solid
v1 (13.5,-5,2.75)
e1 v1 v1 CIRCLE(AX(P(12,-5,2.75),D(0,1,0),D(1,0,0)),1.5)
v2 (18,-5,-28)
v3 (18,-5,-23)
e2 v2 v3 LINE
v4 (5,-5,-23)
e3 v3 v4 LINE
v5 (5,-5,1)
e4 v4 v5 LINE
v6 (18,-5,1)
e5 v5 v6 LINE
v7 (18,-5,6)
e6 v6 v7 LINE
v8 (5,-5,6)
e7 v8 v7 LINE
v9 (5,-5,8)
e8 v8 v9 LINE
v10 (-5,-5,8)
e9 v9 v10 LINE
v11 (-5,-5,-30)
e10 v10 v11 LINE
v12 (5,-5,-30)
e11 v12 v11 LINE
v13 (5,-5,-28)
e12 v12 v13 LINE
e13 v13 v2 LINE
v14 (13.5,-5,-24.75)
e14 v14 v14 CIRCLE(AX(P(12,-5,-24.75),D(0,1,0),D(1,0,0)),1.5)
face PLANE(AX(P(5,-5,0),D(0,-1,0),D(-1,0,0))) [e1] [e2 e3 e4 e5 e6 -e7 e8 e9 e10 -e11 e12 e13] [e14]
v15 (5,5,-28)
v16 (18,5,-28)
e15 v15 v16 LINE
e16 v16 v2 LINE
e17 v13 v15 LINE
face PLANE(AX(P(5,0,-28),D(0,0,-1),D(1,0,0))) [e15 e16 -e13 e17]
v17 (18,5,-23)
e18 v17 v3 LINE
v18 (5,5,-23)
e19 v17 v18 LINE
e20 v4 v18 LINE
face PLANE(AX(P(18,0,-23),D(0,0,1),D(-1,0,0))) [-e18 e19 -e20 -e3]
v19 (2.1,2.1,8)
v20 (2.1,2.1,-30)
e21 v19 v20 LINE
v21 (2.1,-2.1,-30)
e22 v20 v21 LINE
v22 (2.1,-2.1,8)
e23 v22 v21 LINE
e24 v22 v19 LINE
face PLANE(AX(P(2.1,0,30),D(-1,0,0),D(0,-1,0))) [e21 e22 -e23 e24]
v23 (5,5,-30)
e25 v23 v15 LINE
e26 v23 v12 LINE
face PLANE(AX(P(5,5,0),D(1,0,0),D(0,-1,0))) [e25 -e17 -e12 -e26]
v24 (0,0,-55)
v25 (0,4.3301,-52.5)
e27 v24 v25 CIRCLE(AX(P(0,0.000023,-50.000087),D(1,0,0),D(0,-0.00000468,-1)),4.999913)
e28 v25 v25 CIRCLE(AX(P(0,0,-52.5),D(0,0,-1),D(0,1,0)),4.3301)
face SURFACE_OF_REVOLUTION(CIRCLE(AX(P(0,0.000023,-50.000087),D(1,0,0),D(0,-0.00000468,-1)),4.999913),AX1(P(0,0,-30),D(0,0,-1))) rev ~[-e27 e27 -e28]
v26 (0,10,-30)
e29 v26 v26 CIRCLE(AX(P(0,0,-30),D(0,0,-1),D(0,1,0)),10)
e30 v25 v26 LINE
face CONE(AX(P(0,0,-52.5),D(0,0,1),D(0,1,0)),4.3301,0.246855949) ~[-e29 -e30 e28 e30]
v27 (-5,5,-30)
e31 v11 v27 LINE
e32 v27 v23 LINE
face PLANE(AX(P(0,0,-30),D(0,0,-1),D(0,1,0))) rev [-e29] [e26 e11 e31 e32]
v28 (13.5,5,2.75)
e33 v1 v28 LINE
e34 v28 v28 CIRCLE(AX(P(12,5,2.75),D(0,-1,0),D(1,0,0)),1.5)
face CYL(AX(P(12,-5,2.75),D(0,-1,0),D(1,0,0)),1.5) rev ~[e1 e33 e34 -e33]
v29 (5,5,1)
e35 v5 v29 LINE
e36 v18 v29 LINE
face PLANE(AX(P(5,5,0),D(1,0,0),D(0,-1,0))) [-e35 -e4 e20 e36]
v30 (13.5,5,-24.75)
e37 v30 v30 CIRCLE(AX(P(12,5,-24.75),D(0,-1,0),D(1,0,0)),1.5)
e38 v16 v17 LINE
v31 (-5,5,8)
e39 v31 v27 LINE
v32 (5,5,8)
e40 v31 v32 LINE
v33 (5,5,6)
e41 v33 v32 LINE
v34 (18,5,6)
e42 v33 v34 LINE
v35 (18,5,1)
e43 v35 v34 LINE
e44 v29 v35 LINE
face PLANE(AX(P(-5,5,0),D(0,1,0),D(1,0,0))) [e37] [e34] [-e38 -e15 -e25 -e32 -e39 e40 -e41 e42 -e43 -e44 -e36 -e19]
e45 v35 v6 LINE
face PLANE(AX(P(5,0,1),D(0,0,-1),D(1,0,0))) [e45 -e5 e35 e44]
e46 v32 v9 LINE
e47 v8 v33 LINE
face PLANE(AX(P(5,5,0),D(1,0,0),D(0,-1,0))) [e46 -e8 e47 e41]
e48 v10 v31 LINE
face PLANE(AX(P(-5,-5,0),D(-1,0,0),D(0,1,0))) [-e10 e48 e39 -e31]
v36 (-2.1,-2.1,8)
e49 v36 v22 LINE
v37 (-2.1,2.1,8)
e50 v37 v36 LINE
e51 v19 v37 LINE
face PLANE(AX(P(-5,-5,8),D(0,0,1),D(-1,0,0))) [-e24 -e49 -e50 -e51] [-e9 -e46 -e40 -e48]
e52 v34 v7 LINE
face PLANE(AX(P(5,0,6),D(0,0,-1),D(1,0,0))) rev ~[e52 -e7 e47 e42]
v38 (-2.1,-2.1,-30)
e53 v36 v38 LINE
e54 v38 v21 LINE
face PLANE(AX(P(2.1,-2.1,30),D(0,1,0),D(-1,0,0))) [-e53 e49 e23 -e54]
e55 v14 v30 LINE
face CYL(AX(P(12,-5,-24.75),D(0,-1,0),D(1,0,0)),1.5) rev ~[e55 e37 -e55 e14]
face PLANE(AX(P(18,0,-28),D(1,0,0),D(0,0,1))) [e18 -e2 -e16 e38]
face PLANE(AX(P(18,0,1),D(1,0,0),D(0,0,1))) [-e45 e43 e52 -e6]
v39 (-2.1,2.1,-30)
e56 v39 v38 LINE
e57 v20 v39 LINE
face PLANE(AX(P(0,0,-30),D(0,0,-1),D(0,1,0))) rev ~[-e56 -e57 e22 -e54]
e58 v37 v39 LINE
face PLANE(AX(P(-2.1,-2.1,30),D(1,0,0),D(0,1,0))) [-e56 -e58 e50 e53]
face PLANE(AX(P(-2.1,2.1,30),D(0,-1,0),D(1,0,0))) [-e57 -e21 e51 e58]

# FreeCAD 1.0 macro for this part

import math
import FreeCAD as App
import Part
import Sketcher

V = App.Vector
Q = App.Units.Quantity


def add_polygon(sketch, points):
    """Adds a closed chain of lines whose ends are joined by coincident constraints."""
    first, n = sketch.GeometryCount, len(points)
    for a, b in zip(points, points[1:] + points[:1]):
        sketch.addGeometry(Part.LineSegment(App.Vector(*a, 0), App.Vector(*b, 0)), False)
    for i in range(n):
        sketch.addConstraint(Sketcher.Constraint("Coincident", first + i, 2, first + (i + 1) % n, 1))

doc = App.newDocument("Part")
params = doc.addObject("Spreadsheet::Sheet", "Params")
for row, (alias, value) in enumerate([
    ("sketch1_width", "10 mm"),
    ("sketch1_width2", "6.3 mm"),
    ("pad1_length", "60 mm"),
    ("sketch2_radius", "5 mm"),
    ("sketch2_width", "10 mm"),
    ("revolution_angle", "360 deg"),
    ("sketch3_width", "13 mm"),
    ("sketch3_height", "5 mm"),
    ("pad2_length", "10 mm"),
    ("sketch4_diameter", "3 mm"),
    ("sketch5_width", "4.2 mm"),
    ("sketch5_width2", "6.3 mm"),
    ("pad3_length", "80 mm"),
    ("sketch6_height", "22 mm"),
], start=1):
    params.set(f"A{row}", alias)
    params.set(f"B{row}", "=" + value)
    params.setAlias(f"B{row}", alias)

body = doc.addObject("PartDesign::Body", "Body")

# Sketch on XY plane
sketch1 = body.newObject("Sketcher::SketchObject", "Sketch")
sketch1.AttachmentSupport = (doc.getObject("XY_Plane"), [""])
sketch1.MapMode = "FlatFace"
add_polygon(sketch1, [(-5, -5), (5, -5), (5, 5), (-5, 5)])  # lines 0-3
add_polygon(sketch1, [(3, 3), (3, -3), (-3, -3), (-3, 3)])  # lines 4-7
sketch1.addConstraint([
    Sketcher.Constraint("Horizontal", 0),
    Sketcher.Constraint("Vertical", 1),
    Sketcher.Constraint("Horizontal", 2),
    Sketcher.Constraint("Vertical", 3),
    Sketcher.Constraint("Vertical", 4),
    Sketcher.Constraint("Horizontal", 5),
    Sketcher.Constraint("Vertical", 6),
    Sketcher.Constraint("Horizontal", 7),
    Sketcher.Constraint("Symmetric", 0, 2, 2, 2, -1, 1),
    Sketcher.Constraint("Symmetric", 4, 2, 6, 2, -1, 1),
    Sketcher.Constraint("Equal", 2, 1),
    Sketcher.Constraint("Equal", 7, 4),
    Sketcher.Constraint("DistanceX", 0, 1, 0, 2, Q("10 mm")),
    Sketcher.Constraint("DistanceX", 5, 2, 5, 1, Q("6.3 mm")),
])
sketch1.setExpression("Constraints[20]", "Params.sketch1_width")
sketch1.setExpression("Constraints[21]", "Params.sketch1_width2")
pad1 = body.newObject("PartDesign::Pad", "Pad")
pad1.Profile = sketch1
pad1.setExpression("Length", "Params.pad1_length")
pad1.Midplane = True

# Sketch on YZ plane
sketch2 = body.newObject("Sketcher::SketchObject", "Sketch001")
sketch2.AttachmentSupport = (doc.getObject("YZ_Plane"), [""])
sketch2.MapMode = "FlatFace"
sketch2.addGeometry([
    Part.LineSegment(V(10, -30, 0), V(0, -30, 0)),
    Part.LineSegment(V(0, -30, 0), V(0, -55, 0)),
    Part.ArcOfCircle(Part.Circle(V(0, -50, 0), V(0, 0, 1), 5), math.radians(-90), math.radians(-30)),
    Part.LineSegment(V(4.3, -52.5, 0), V(10, -30, 0)),
], False)
sketch2.addConstraint([
    Sketcher.Constraint("Coincident", 0, 2, 1, 1),
    Sketcher.Constraint("Coincident", 1, 2, 2, 1),
    Sketcher.Constraint("Coincident", 2, 2, 3, 1),
    Sketcher.Constraint("Coincident", 3, 2, 0, 1),
    Sketcher.Constraint("Horizontal", 0),
    Sketcher.Constraint("Vertical", 1),
    Sketcher.Constraint("PointOnObject", 2, 3, -2),
    Sketcher.Constraint("PointOnObject", 0, 2, -2),
    Sketcher.Constraint("Radius", 2, Q("5 mm")),
    Sketcher.Constraint("DistanceX", 0, 2, 0, 1, Q("10 mm")),
    Sketcher.Constraint("DistanceY", 2, 3, 0, 2, Q("20 mm")),
    Sketcher.Constraint("DistanceY", 2, 3, -1, 1, Q("50 mm")),
    Sketcher.Constraint("DistanceY", 2, 2, -1, 1, Q("52.5 mm")),
])
sketch2.setExpression("Constraints[8]", "Params.sketch2_radius")
sketch2.setExpression("Constraints[9]", "Params.sketch2_width")
revolution = body.newObject("PartDesign::Revolution", "Revolution")
revolution.Profile = sketch2
revolution.ReferenceAxis = (sketch2, ["V_Axis"])
revolution.setExpression("Angle", "Params.revolution_angle")

# Sketch on XZ plane
sketch3 = body.newObject("Sketcher::SketchObject", "Sketch002")
sketch3.AttachmentSupport = (doc.getObject("XZ_Plane"), [""])
sketch3.MapMode = "FlatFace"
add_polygon(sketch3, [(18, -28), (5, -28), (5, -23), (18, -23)])  # lines 0-3
add_polygon(sketch3, [(18, 1), (5, 1), (5, 6), (18, 6)])  # lines 4-7
sketch3.addConstraint([
    Sketcher.Constraint("Horizontal", 0),
    Sketcher.Constraint("Vertical", 1),
    Sketcher.Constraint("Horizontal", 2),
    Sketcher.Constraint("Vertical", 3),
    Sketcher.Constraint("Horizontal", 4),
    Sketcher.Constraint("Vertical", 5),
    Sketcher.Constraint("Horizontal", 6),
    Sketcher.Constraint("Vertical", 7),
    Sketcher.Constraint("Vertical", 1, 2, 4, 2),
    Sketcher.Constraint("Vertical", 3, 2, 6, 2),
    Sketcher.Constraint("Equal", 3, 5),
    Sketcher.Constraint("DistanceX", 0, 2, 0, 1, Q("13 mm")),
    Sketcher.Constraint("DistanceY", 1, 1, 1, 2, Q("5 mm")),
    Sketcher.Constraint("DistanceX", -1, 1, 0, 2, Q("5 mm")),
    Sketcher.Constraint("DistanceY", 1, 2, -1, 1, Q("23 mm")),
    Sketcher.Constraint("DistanceY", -1, 1, 4, 2, Q("1 mm")),
])
sketch3.setExpression("Constraints[19]", "Params.sketch3_width")
sketch3.setExpression("Constraints[20]", "Params.sketch3_height")
pad2 = body.newObject("PartDesign::Pad", "Pad001")
pad2.Profile = sketch3
pad2.setExpression("Length", "Params.pad2_length")
pad2.Midplane = True

# Sketch on XZ plane
sketch4 = body.newObject("Sketcher::SketchObject", "Sketch003")
sketch4.AttachmentSupport = (doc.getObject("XZ_Plane"), [""])
sketch4.MapMode = "FlatFace"
sketch4.AttachmentOffset = App.Placement(V(0, 0, 5), App.Rotation())
sketch4.addGeometry([
    Part.Circle(V(12, -24.8, 0), V(0, 0, 1), 1.5),
    Part.Circle(V(12, 2.8, 0), V(0, 0, 1), 1.5),
], False)
sketch4.addConstraint([
    Sketcher.Constraint("Equal", 0, 1),
    Sketcher.Constraint("Vertical", 0, 3, 1, 3),
    Sketcher.Constraint("Diameter", 0, Q("3 mm")),
    Sketcher.Constraint("DistanceX", -1, 1, 0, 3, Q("12 mm")),
    Sketcher.Constraint("DistanceY", 0, 3, 1, 3, Q("27.5 mm")),
    Sketcher.Constraint("DistanceY", 0, 3, -1, 1, Q("24.75 mm")),
])
sketch4.setExpression("Constraints[2]", "Params.sketch4_diameter")
pocket1 = body.newObject("PartDesign::Pocket", "Pocket")
pocket1.Profile = sketch4
pocket1.Type = "ThroughAll"

# Sketch on XY plane
sketch5 = body.newObject("Sketcher::SketchObject", "Sketch004")
sketch5.AttachmentSupport = (doc.getObject("XY_Plane"), [""])
sketch5.MapMode = "FlatFace"
sketch5.AttachmentOffset = App.Placement(V(0, 0, 30), App.Rotation())
add_polygon(sketch5, [(3.1, -3.1), (3.1, 3.1), (-3.1, 3.1), (-3.1, -3.1)])  # lines 0-3
add_polygon(sketch5, [(2.1, 2.1), (2.1, -2.1), (-2.1, -2.1), (-2.1, 2.1)])  # lines 4-7
sketch5.addConstraint([
    Sketcher.Constraint("Vertical", 0),
    Sketcher.Constraint("Horizontal", 1),
    Sketcher.Constraint("Vertical", 2),
    Sketcher.Constraint("Horizontal", 3),
    Sketcher.Constraint("Vertical", 4),
    Sketcher.Constraint("Horizontal", 5),
    Sketcher.Constraint("Vertical", 6),
    Sketcher.Constraint("Horizontal", 7),
    Sketcher.Constraint("Symmetric", 0, 2, 2, 2, -1, 1),
    Sketcher.Constraint("Symmetric", 4, 2, 6, 2, -1, 1),
    Sketcher.Constraint("Equal", 3, 0),
    Sketcher.Constraint("Equal", 7, 4),
    Sketcher.Constraint("DistanceX", 5, 2, 5, 1, Q("4.2 mm")),
    Sketcher.Constraint("DistanceX", 1, 2, 1, 1, Q("6.3 mm")),
])
sketch5.setExpression("Constraints[20]", "Params.sketch5_width")
sketch5.setExpression("Constraints[21]", "Params.sketch5_width2")
pad3 = body.newObject("PartDesign::Pad", "Pad002")
pad3.Profile = sketch5
pad3.setExpression("Length", "Params.pad3_length")
pad3.Reversed = True

# Sketch on XZ plane
sketch6 = body.newObject("Sketcher::SketchObject", "Sketch005")
sketch6.AttachmentSupport = (doc.getObject("XZ_Plane"), [""])
sketch6.MapMode = "FlatFace"
sketch6.AttachmentOffset = App.Placement(V(0, 0, 5), App.Rotation())
add_polygon(sketch6, [(-15, 8), (15, 8), (15, 30), (-15, 30)])  # lines 0-3
sketch6.addConstraint([
    Sketcher.Constraint("Horizontal", 0),
    Sketcher.Constraint("Vertical", 1),
    Sketcher.Constraint("Horizontal", 2),
    Sketcher.Constraint("Vertical", 3),
    Sketcher.Constraint("DistanceY", 1, 1, 1, 2, Q("22 mm")),
    Sketcher.Constraint("DistanceY", -1, 1, 0, 2, Q("8 mm")),
    Sketcher.Constraint("DistanceX", 0, 1, 0, 2, Q("30.0753 mm")),
    Sketcher.Constraint("DistanceX", -1, 1, 0, 2, Q("14.955 mm")),
])
sketch6.setExpression("Constraints[8]", "Params.sketch6_height")
pocket2 = body.newObject("PartDesign::Pocket", "Pocket001")
pocket2.Profile = sketch6
pocket2.Type = "ThroughAll"

doc.recompute()
